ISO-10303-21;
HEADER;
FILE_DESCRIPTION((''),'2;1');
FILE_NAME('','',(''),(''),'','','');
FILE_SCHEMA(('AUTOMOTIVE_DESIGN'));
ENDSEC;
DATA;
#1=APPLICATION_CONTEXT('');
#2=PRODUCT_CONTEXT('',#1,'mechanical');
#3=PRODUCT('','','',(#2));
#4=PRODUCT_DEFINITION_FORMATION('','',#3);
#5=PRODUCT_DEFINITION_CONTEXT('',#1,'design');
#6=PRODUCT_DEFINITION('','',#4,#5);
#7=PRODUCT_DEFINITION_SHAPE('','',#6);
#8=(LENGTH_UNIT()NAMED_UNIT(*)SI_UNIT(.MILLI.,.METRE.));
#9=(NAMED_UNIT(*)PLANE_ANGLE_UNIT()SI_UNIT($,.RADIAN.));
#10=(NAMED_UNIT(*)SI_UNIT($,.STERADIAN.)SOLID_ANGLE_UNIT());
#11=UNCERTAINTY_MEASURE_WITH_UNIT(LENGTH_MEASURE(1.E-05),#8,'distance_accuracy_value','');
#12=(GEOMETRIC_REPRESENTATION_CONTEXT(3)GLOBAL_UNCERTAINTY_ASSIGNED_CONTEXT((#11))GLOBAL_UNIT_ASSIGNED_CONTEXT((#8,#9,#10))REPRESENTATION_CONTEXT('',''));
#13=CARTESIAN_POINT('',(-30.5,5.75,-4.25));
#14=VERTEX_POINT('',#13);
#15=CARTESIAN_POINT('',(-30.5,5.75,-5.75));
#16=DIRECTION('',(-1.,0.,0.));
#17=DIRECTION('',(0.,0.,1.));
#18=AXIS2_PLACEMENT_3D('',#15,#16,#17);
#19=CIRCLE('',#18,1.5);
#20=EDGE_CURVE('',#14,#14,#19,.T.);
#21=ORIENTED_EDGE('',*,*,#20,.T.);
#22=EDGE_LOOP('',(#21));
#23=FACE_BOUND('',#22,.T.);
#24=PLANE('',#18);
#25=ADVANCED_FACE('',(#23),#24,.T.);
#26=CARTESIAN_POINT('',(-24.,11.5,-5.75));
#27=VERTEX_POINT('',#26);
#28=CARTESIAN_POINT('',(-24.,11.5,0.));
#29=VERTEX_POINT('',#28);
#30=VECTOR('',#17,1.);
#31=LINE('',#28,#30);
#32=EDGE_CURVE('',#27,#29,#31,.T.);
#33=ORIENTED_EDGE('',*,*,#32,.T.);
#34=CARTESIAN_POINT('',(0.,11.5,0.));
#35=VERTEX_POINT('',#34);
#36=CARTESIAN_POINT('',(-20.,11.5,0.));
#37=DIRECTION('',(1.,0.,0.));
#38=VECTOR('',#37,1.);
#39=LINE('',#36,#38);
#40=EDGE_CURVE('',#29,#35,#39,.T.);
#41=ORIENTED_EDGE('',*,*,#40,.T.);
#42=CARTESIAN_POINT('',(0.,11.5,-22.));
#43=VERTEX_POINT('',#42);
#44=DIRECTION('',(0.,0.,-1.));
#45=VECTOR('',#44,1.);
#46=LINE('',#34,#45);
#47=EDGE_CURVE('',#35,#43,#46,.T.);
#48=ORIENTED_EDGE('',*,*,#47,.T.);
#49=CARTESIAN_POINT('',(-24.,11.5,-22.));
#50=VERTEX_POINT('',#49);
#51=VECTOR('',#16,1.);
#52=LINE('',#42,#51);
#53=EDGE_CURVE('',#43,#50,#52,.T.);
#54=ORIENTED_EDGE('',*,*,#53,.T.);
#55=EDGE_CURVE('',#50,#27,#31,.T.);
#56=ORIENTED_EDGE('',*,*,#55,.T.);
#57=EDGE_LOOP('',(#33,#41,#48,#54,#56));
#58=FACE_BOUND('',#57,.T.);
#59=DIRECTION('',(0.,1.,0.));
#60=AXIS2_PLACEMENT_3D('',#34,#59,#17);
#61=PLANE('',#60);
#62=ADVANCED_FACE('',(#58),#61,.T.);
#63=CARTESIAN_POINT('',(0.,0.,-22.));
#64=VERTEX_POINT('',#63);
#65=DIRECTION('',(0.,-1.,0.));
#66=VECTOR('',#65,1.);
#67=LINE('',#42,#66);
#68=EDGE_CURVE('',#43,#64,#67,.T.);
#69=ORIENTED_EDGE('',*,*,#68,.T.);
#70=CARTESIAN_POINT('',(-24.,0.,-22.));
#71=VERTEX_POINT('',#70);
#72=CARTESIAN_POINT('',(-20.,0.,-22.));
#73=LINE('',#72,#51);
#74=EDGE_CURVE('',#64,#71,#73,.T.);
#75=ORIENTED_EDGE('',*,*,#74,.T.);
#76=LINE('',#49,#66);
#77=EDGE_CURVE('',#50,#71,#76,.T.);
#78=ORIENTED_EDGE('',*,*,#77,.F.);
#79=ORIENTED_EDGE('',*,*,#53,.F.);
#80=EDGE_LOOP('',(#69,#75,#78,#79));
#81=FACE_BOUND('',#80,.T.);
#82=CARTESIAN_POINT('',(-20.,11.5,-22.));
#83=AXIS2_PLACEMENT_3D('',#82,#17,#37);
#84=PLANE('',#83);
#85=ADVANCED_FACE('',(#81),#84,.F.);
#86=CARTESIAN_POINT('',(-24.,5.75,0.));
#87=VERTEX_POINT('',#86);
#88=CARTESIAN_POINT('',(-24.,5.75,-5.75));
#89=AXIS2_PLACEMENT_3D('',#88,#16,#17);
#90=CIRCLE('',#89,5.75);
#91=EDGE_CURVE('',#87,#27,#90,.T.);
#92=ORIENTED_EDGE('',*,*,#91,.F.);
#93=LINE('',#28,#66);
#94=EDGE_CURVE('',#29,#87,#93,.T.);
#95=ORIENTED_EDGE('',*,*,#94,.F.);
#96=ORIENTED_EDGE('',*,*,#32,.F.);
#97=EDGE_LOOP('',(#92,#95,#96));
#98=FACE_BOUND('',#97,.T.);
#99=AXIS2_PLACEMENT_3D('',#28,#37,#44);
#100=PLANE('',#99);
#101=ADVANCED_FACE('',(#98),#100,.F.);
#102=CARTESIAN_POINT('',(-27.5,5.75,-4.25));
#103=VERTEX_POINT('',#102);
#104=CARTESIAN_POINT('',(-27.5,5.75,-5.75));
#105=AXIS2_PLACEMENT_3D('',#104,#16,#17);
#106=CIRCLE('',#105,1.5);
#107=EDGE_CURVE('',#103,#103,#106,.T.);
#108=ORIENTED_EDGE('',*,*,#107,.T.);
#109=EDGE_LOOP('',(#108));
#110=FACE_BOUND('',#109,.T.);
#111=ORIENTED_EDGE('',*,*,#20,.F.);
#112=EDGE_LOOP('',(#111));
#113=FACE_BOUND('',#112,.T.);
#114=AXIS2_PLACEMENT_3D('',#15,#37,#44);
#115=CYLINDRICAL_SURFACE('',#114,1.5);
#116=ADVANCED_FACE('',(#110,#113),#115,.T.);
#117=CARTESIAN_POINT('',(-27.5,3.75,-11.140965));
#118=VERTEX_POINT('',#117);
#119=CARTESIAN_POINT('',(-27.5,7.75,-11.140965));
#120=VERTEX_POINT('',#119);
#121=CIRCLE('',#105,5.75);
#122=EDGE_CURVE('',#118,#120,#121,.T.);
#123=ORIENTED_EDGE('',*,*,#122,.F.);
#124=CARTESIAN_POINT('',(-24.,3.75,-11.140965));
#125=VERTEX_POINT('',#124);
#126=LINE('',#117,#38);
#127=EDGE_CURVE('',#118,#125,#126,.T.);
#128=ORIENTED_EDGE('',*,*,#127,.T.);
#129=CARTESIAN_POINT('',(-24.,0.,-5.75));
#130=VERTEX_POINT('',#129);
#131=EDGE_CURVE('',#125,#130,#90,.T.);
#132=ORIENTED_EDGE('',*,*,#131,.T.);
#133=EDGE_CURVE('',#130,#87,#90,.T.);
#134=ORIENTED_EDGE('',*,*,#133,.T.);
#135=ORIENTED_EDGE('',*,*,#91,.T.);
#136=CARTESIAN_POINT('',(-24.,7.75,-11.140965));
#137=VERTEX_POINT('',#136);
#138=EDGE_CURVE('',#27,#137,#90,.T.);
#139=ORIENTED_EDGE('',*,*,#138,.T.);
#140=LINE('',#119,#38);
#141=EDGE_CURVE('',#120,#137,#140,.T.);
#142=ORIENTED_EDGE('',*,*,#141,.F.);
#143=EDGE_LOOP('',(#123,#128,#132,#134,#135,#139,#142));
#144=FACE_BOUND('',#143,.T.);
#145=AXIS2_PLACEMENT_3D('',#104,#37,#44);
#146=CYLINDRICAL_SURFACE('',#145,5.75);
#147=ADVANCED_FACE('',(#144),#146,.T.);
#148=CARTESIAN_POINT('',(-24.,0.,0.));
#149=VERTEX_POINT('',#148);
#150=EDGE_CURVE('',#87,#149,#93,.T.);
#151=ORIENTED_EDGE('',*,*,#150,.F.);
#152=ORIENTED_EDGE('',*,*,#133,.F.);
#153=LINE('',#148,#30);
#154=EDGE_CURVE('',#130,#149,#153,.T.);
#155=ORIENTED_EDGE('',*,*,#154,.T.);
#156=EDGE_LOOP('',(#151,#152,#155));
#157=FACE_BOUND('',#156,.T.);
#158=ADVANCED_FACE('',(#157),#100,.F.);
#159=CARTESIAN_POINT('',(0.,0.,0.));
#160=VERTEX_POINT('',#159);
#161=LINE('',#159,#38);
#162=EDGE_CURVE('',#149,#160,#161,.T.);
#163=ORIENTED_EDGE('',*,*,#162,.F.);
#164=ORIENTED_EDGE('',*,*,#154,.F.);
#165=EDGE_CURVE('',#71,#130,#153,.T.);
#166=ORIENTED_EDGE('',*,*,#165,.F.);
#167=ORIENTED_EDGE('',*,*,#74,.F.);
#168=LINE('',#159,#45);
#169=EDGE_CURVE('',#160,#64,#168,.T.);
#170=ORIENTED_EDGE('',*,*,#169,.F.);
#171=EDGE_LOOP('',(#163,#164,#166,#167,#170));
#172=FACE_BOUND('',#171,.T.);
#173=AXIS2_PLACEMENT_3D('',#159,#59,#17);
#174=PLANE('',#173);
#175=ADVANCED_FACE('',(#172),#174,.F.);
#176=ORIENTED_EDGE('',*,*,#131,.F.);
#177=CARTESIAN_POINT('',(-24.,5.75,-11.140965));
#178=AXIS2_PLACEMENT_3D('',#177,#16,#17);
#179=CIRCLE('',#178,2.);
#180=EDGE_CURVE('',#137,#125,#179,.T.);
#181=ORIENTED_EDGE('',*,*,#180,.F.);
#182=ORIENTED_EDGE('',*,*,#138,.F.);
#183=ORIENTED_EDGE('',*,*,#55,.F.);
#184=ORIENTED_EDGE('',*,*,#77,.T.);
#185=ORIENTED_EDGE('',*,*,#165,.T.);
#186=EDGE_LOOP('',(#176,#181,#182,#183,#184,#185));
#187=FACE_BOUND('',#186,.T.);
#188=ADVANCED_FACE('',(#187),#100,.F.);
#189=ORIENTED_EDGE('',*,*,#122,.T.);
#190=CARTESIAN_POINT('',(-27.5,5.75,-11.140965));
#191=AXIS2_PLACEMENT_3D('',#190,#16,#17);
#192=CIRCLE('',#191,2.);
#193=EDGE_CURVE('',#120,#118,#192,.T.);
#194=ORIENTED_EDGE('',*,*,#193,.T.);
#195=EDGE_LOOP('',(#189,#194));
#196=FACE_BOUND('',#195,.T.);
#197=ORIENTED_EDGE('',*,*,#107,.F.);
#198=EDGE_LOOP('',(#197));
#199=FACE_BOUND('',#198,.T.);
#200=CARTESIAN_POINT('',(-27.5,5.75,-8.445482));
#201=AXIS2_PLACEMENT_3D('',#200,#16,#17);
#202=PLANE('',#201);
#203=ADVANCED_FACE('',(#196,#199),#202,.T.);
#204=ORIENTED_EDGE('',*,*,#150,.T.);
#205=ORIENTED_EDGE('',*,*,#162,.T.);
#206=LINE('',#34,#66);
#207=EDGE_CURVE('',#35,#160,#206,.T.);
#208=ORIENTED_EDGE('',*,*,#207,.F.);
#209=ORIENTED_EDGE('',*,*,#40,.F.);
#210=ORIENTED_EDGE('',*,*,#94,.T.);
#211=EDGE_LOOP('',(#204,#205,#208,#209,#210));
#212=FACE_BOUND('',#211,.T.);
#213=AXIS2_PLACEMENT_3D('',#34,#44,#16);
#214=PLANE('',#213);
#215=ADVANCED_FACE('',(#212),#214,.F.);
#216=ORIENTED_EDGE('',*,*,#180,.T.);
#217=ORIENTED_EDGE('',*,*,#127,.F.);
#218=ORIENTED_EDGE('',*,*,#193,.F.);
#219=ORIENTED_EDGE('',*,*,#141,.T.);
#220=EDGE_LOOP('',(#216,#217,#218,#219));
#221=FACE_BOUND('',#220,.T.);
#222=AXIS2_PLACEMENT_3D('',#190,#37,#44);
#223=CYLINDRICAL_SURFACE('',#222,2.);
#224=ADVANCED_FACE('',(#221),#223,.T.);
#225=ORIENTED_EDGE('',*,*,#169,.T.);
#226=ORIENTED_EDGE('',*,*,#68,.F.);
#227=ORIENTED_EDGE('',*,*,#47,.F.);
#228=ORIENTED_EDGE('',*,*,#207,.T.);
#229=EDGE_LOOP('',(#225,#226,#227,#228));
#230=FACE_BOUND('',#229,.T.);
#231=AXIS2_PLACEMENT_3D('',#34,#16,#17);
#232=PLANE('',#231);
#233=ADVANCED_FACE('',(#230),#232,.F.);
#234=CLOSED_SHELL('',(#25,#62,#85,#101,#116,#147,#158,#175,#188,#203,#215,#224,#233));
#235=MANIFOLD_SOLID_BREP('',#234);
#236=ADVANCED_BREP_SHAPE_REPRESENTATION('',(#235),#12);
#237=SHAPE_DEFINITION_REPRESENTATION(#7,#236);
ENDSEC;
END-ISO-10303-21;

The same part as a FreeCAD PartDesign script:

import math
import FreeCAD as App
import Part
import Sketcher

V = App.Vector

doc = App.newDocument("Part")
body = doc.addObject("PartDesign::Body", "Body")

sketch1 = body.newObject("Sketcher::SketchObject", "Sketch")
sketch1.AttachmentSupport = (doc.getObject("XZ_Plane"), [""])
sketch1.MapMode = "FlatFace"
sketch1.addGeometry([
    Part.LineSegment(V(-24, 0, 0), V(-20, 0, 0)),
    Part.LineSegment(V(-20, 0, 0), V(-20, 4, 0)),
    Part.LineSegment(V(-20, 4, 0), V(-18, 4, 0)),
    Part.LineSegment(V(-18, 4, 0), V(-18, 0, 0)),
    Part.LineSegment(V(-18, 0, 0), V(0, 0, 0)),
    Part.LineSegment(V(0, 0, 0), V(0, -22, 0)),
    Part.LineSegment(V(0, -22, 0), V(-18, -22, 0)),
    Part.LineSegment(V(-18, -22, 0), V(-18, -26, 0)),
    Part.LineSegment(V(-18, -26, 0), V(-20, -26, 0)),
    Part.LineSegment(V(-20, -26, 0), V(-20, -22, 0)),
    Part.LineSegment(V(-20, -22, 0), V(-24, -22, 0)),
    Part.LineSegment(V(-24, -22, 0), V(-24, 0, 0)),
], False)
sketch1.addConstraint([
    Sketcher.Constraint("Coincident", 0, 2, 1, 1),
    Sketcher.Constraint("Coincident", 1, 2, 2, 1),
    Sketcher.Constraint("Coincident", 2, 2, 3, 1),
    Sketcher.Constraint("Coincident", 3, 2, 4, 1),
    Sketcher.Constraint("Coincident", 4, 2, 5, 1),
    Sketcher.Constraint("Coincident", 5, 2, 6, 1),
    Sketcher.Constraint("Coincident", 6, 2, 7, 1),
    Sketcher.Constraint("Coincident", 7, 2, 8, 1),
    Sketcher.Constraint("Coincident", 8, 2, 9, 1),
    Sketcher.Constraint("Coincident", 9, 2, 10, 1),
    Sketcher.Constraint("Coincident", 10, 2, 11, 1),
    Sketcher.Constraint("Coincident", 11, 2, 0, 1),
    Sketcher.Constraint("Horizontal", 0),
    Sketcher.Constraint("Vertical", 1),
    Sketcher.Constraint("Horizontal", 2),
    Sketcher.Constraint("Vertical", 3),
    Sketcher.Constraint("Horizontal", 4),
    Sketcher.Constraint("Vertical", 5),
    Sketcher.Constraint("Horizontal", 6),
    Sketcher.Constraint("Vertical", 7),
    Sketcher.Constraint("Horizontal", 8),
    Sketcher.Constraint("Vertical", 9),
    Sketcher.Constraint("Horizontal", 10),
    Sketcher.Constraint("Vertical", 11),
    Sketcher.Constraint("Coincident", 4, 2, -1, 1),
    Sketcher.Constraint("PointOnObject", 0, 2, -1),
    Sketcher.Constraint("Horizontal", 6, 2, 9, 2),
    Sketcher.Constraint("Vertical", 3, 2, 6, 2),
    Sketcher.Constraint("Vertical", 1, 2, 8, 2),
    Sketcher.Constraint("Equal", 10, 1),
    Sketcher.Constraint("Equal", 3, 7),
    Sketcher.Constraint("DistanceX", 0, 1, 0, 2, 4.0),
    Sketcher.Constraint("DistanceX", 2, 1, 2, 2, 2.0),
    Sketcher.Constraint("DistanceX", 4, 1, 4, 2, 18.0),
    Sketcher.Constraint("DistanceY", 5, 2, 5, 1, 22.0),
])
pad1 = body.newObject("PartDesign::Pad", "Pad")
pad1.Profile = sketch1
pad1.Length = 11.5
pad1.Reversed = True

sketch2 = body.newObject("Sketcher::SketchObject", "Sketch001")
sketch2.AttachmentSupport = (doc.getObject("YZ_Plane"), [""])
sketch2.MapMode = "FlatFace"
sketch2.AttachmentOffset = App.Placement(V(0, 0, -24), App.Rotation())
sketch2.addGeometry([
    Part.ArcOfCircle(Part.Circle(V(5.8, -5.8, 0), V(0, 0, 1), 5.8), math.radians(-70), math.radians(250)),
    Part.ArcOfCircle(Part.Circle(V(5.8, -11.1, 0), V(0, 0, 1), 2), math.radians(180), math.radians(360)),
], False)
sketch2.addConstraint([
    Sketcher.Constraint("Coincident", 0, 1, 1, 2),
    Sketcher.Constraint("Coincident", 1, 1, 0, 2),
    Sketcher.Constraint("Horizontal", 1, 3, 0, 1),
    Sketcher.Constraint("Horizontal", 0, 1, 1, 1),
    Sketcher.Constraint("Radius", 1, 2.0),
    Sketcher.Constraint("Radius", 0, 5.75),
    Sketcher.Constraint("DistanceX", -1, 1, 0, 3, 5.75),
    Sketcher.Constraint("DistanceY", 0, 3, -1, 1, 5.75),
])
pad2 = body.newObject("PartDesign::Pad", "Pad001")
pad2.Profile = sketch2
pad2.Length = 3.5
pad2.Reversed = True

sketch3 = body.newObject("Sketcher::SketchObject", "Sketch002")
sketch3.AttachmentSupport = (doc.getObject("YZ_Plane"), [""])
sketch3.MapMode = "FlatFace"
sketch3.AttachmentOffset = App.Placement(V(0, 0, -27.5), App.Rotation())
sketch3.addGeometry(Part.Circle(V(5.8, -5.8, 0), V(0, 0, 1), 1.5), False)
sketch3.addConstraint([
    Sketcher.Constraint("Diameter", 0, 3.0),
    Sketcher.Constraint("DistanceX", -1, 1, 0, 3, 5.75),
    Sketcher.Constraint("DistanceY", 0, 3, -1, 1, 5.75),
])
pad3 = body.newObject("PartDesign::Pad", "Pad002")
pad3.Profile = sketch3
pad3.Length = 3
pad3.Reversed = True

sketch4 = body.newObject("Sketcher::SketchObject", "Sketch003")
sketch4.AttachmentSupport = (doc.getObject("YZ_Plane"), [""])
sketch4.MapMode = "FlatFace"
sketch4.AttachmentOffset = App.Placement(V(0, 0, -20), App.Rotation())
sketch4.addGeometry([
    Part.Circle(V(5.8, -24.8, 0), V(0, 0, 1), 1.2),
    Part.Circle(V(5.8, 2.8, 0), V(0, 0, 1), 1.2),
], False)
sketch4.addConstraint([
    Sketcher.Constraint("Equal", 0, 1),
    Sketcher.Constraint("Vertical", 0, 3, 1, 3),
    Sketcher.Constraint("Diameter", 0, 2.5),
    Sketcher.Constraint("DistanceY", 0, 3, -1, 1, 24.8),
    Sketcher.Constraint("DistanceY", -1, 1, 1, 3, 2.8),
    Sketcher.Constraint("DistanceX", -1, 1, 0, 3, 5.75),
])
pocket1 = body.newObject("PartDesign::Pocket", "Pocket")
pocket1.Profile = sketch4
pocket1.Length = 3.5
pocket1.Reversed = True

sketch5 = body.newObject("Sketcher::SketchObject", "Sketch004")
sketch5.AttachmentSupport = (doc.getObject("YZ_Plane"), [""])
sketch5.MapMode = "FlatFace"
sketch5.AttachmentOffset = App.Placement(V(0, 0, -18), App.Rotation())
sketch5.addGeometry([
    Part.LineSegment(V(11.5, -22, 0), V(0, -22, 0)),
    Part.LineSegment(V(0, -22, 0), V(0, -26, 0)),
    Part.LineSegment(V(0, -26, 0), V(11.5, -26, 0)),
    Part.LineSegment(V(11.5, -26, 0), V(11.5, -22, 0)),
], False)
sketch5.addConstraint([
    Sketcher.Constraint("Coincident", 0, 2, 1, 1),
    Sketcher.Constraint("Coincident", 1, 2, 2, 1),
    Sketcher.Constraint("Coincident", 2, 2, 3, 1),
    Sketcher.Constraint("Coincident", 3, 2, 0, 1),
    Sketcher.Constraint("Horizontal", 0),
    Sketcher.Constraint("Vertical", 1),
    Sketcher.Constraint("Horizontal", 2),
    Sketcher.Constraint("Vertical", 3),
    Sketcher.Constraint("PointOnObject", 0, 2, -2),
    Sketcher.Constraint("DistanceY", 1, 2, 1, 1, 4.0),
    Sketcher.Constraint("DistanceX", 0, 2, 0, 1, 11.5),
    Sketcher.Constraint("DistanceY", 0, 2, -1, 1, 22.0),
])
pocket2 = body.newObject("PartDesign::Pocket", "Pocket001")
pocket2.Profile = sketch5
pocket2.Length = 10

sketch6 = body.newObject("Sketcher::SketchObject", "Sketch005")
sketch6.AttachmentSupport = (doc.getObject("YZ_Plane"), [""])
sketch6.MapMode = "FlatFace"
sketch6.AttachmentOffset = App.Placement(V(0, 0, -18), App.Rotation())
sketch6.addGeometry([
    Part.LineSegment(V(11.5, 4, 0), V(0, 4, 0)),
    Part.LineSegment(V(0, 4, 0), V(0, 0, 0)),
    Part.LineSegment(V(0, 0, 0), V(11.5, 0, 0)),
    Part.LineSegment(V(11.5, 0, 0), V(11.5, 4, 0)),
], False)
sketch6.addConstraint([
    Sketcher.Constraint("Coincident", 0, 2, 1, 1),
    Sketcher.Constraint("Coincident", 1, 2, 2, 1),
    Sketcher.Constraint("Coincident", 2, 2, 3, 1),
    Sketcher.Constraint("Coincident", 3, 2, 0, 1),
    Sketcher.Constraint("Horizontal", 0),
    Sketcher.Constraint("Vertical", 1),
    Sketcher.Constraint("Horizontal", 2),
    Sketcher.Constraint("Vertical", 3),
    Sketcher.Constraint("Coincident", 1, 2, -1, 1),
    Sketcher.Constraint("DistanceY", 1, 2, 1, 1, 4.0),
    Sketcher.Constraint("DistanceX", 0, 2, 0, 1, 11.5),
])
pocket3 = body.newObject("PartDesign::Pocket", "Pocket002")
pocket3.Profile = sketch6
pocket3.Length = 10

doc.recompute()
